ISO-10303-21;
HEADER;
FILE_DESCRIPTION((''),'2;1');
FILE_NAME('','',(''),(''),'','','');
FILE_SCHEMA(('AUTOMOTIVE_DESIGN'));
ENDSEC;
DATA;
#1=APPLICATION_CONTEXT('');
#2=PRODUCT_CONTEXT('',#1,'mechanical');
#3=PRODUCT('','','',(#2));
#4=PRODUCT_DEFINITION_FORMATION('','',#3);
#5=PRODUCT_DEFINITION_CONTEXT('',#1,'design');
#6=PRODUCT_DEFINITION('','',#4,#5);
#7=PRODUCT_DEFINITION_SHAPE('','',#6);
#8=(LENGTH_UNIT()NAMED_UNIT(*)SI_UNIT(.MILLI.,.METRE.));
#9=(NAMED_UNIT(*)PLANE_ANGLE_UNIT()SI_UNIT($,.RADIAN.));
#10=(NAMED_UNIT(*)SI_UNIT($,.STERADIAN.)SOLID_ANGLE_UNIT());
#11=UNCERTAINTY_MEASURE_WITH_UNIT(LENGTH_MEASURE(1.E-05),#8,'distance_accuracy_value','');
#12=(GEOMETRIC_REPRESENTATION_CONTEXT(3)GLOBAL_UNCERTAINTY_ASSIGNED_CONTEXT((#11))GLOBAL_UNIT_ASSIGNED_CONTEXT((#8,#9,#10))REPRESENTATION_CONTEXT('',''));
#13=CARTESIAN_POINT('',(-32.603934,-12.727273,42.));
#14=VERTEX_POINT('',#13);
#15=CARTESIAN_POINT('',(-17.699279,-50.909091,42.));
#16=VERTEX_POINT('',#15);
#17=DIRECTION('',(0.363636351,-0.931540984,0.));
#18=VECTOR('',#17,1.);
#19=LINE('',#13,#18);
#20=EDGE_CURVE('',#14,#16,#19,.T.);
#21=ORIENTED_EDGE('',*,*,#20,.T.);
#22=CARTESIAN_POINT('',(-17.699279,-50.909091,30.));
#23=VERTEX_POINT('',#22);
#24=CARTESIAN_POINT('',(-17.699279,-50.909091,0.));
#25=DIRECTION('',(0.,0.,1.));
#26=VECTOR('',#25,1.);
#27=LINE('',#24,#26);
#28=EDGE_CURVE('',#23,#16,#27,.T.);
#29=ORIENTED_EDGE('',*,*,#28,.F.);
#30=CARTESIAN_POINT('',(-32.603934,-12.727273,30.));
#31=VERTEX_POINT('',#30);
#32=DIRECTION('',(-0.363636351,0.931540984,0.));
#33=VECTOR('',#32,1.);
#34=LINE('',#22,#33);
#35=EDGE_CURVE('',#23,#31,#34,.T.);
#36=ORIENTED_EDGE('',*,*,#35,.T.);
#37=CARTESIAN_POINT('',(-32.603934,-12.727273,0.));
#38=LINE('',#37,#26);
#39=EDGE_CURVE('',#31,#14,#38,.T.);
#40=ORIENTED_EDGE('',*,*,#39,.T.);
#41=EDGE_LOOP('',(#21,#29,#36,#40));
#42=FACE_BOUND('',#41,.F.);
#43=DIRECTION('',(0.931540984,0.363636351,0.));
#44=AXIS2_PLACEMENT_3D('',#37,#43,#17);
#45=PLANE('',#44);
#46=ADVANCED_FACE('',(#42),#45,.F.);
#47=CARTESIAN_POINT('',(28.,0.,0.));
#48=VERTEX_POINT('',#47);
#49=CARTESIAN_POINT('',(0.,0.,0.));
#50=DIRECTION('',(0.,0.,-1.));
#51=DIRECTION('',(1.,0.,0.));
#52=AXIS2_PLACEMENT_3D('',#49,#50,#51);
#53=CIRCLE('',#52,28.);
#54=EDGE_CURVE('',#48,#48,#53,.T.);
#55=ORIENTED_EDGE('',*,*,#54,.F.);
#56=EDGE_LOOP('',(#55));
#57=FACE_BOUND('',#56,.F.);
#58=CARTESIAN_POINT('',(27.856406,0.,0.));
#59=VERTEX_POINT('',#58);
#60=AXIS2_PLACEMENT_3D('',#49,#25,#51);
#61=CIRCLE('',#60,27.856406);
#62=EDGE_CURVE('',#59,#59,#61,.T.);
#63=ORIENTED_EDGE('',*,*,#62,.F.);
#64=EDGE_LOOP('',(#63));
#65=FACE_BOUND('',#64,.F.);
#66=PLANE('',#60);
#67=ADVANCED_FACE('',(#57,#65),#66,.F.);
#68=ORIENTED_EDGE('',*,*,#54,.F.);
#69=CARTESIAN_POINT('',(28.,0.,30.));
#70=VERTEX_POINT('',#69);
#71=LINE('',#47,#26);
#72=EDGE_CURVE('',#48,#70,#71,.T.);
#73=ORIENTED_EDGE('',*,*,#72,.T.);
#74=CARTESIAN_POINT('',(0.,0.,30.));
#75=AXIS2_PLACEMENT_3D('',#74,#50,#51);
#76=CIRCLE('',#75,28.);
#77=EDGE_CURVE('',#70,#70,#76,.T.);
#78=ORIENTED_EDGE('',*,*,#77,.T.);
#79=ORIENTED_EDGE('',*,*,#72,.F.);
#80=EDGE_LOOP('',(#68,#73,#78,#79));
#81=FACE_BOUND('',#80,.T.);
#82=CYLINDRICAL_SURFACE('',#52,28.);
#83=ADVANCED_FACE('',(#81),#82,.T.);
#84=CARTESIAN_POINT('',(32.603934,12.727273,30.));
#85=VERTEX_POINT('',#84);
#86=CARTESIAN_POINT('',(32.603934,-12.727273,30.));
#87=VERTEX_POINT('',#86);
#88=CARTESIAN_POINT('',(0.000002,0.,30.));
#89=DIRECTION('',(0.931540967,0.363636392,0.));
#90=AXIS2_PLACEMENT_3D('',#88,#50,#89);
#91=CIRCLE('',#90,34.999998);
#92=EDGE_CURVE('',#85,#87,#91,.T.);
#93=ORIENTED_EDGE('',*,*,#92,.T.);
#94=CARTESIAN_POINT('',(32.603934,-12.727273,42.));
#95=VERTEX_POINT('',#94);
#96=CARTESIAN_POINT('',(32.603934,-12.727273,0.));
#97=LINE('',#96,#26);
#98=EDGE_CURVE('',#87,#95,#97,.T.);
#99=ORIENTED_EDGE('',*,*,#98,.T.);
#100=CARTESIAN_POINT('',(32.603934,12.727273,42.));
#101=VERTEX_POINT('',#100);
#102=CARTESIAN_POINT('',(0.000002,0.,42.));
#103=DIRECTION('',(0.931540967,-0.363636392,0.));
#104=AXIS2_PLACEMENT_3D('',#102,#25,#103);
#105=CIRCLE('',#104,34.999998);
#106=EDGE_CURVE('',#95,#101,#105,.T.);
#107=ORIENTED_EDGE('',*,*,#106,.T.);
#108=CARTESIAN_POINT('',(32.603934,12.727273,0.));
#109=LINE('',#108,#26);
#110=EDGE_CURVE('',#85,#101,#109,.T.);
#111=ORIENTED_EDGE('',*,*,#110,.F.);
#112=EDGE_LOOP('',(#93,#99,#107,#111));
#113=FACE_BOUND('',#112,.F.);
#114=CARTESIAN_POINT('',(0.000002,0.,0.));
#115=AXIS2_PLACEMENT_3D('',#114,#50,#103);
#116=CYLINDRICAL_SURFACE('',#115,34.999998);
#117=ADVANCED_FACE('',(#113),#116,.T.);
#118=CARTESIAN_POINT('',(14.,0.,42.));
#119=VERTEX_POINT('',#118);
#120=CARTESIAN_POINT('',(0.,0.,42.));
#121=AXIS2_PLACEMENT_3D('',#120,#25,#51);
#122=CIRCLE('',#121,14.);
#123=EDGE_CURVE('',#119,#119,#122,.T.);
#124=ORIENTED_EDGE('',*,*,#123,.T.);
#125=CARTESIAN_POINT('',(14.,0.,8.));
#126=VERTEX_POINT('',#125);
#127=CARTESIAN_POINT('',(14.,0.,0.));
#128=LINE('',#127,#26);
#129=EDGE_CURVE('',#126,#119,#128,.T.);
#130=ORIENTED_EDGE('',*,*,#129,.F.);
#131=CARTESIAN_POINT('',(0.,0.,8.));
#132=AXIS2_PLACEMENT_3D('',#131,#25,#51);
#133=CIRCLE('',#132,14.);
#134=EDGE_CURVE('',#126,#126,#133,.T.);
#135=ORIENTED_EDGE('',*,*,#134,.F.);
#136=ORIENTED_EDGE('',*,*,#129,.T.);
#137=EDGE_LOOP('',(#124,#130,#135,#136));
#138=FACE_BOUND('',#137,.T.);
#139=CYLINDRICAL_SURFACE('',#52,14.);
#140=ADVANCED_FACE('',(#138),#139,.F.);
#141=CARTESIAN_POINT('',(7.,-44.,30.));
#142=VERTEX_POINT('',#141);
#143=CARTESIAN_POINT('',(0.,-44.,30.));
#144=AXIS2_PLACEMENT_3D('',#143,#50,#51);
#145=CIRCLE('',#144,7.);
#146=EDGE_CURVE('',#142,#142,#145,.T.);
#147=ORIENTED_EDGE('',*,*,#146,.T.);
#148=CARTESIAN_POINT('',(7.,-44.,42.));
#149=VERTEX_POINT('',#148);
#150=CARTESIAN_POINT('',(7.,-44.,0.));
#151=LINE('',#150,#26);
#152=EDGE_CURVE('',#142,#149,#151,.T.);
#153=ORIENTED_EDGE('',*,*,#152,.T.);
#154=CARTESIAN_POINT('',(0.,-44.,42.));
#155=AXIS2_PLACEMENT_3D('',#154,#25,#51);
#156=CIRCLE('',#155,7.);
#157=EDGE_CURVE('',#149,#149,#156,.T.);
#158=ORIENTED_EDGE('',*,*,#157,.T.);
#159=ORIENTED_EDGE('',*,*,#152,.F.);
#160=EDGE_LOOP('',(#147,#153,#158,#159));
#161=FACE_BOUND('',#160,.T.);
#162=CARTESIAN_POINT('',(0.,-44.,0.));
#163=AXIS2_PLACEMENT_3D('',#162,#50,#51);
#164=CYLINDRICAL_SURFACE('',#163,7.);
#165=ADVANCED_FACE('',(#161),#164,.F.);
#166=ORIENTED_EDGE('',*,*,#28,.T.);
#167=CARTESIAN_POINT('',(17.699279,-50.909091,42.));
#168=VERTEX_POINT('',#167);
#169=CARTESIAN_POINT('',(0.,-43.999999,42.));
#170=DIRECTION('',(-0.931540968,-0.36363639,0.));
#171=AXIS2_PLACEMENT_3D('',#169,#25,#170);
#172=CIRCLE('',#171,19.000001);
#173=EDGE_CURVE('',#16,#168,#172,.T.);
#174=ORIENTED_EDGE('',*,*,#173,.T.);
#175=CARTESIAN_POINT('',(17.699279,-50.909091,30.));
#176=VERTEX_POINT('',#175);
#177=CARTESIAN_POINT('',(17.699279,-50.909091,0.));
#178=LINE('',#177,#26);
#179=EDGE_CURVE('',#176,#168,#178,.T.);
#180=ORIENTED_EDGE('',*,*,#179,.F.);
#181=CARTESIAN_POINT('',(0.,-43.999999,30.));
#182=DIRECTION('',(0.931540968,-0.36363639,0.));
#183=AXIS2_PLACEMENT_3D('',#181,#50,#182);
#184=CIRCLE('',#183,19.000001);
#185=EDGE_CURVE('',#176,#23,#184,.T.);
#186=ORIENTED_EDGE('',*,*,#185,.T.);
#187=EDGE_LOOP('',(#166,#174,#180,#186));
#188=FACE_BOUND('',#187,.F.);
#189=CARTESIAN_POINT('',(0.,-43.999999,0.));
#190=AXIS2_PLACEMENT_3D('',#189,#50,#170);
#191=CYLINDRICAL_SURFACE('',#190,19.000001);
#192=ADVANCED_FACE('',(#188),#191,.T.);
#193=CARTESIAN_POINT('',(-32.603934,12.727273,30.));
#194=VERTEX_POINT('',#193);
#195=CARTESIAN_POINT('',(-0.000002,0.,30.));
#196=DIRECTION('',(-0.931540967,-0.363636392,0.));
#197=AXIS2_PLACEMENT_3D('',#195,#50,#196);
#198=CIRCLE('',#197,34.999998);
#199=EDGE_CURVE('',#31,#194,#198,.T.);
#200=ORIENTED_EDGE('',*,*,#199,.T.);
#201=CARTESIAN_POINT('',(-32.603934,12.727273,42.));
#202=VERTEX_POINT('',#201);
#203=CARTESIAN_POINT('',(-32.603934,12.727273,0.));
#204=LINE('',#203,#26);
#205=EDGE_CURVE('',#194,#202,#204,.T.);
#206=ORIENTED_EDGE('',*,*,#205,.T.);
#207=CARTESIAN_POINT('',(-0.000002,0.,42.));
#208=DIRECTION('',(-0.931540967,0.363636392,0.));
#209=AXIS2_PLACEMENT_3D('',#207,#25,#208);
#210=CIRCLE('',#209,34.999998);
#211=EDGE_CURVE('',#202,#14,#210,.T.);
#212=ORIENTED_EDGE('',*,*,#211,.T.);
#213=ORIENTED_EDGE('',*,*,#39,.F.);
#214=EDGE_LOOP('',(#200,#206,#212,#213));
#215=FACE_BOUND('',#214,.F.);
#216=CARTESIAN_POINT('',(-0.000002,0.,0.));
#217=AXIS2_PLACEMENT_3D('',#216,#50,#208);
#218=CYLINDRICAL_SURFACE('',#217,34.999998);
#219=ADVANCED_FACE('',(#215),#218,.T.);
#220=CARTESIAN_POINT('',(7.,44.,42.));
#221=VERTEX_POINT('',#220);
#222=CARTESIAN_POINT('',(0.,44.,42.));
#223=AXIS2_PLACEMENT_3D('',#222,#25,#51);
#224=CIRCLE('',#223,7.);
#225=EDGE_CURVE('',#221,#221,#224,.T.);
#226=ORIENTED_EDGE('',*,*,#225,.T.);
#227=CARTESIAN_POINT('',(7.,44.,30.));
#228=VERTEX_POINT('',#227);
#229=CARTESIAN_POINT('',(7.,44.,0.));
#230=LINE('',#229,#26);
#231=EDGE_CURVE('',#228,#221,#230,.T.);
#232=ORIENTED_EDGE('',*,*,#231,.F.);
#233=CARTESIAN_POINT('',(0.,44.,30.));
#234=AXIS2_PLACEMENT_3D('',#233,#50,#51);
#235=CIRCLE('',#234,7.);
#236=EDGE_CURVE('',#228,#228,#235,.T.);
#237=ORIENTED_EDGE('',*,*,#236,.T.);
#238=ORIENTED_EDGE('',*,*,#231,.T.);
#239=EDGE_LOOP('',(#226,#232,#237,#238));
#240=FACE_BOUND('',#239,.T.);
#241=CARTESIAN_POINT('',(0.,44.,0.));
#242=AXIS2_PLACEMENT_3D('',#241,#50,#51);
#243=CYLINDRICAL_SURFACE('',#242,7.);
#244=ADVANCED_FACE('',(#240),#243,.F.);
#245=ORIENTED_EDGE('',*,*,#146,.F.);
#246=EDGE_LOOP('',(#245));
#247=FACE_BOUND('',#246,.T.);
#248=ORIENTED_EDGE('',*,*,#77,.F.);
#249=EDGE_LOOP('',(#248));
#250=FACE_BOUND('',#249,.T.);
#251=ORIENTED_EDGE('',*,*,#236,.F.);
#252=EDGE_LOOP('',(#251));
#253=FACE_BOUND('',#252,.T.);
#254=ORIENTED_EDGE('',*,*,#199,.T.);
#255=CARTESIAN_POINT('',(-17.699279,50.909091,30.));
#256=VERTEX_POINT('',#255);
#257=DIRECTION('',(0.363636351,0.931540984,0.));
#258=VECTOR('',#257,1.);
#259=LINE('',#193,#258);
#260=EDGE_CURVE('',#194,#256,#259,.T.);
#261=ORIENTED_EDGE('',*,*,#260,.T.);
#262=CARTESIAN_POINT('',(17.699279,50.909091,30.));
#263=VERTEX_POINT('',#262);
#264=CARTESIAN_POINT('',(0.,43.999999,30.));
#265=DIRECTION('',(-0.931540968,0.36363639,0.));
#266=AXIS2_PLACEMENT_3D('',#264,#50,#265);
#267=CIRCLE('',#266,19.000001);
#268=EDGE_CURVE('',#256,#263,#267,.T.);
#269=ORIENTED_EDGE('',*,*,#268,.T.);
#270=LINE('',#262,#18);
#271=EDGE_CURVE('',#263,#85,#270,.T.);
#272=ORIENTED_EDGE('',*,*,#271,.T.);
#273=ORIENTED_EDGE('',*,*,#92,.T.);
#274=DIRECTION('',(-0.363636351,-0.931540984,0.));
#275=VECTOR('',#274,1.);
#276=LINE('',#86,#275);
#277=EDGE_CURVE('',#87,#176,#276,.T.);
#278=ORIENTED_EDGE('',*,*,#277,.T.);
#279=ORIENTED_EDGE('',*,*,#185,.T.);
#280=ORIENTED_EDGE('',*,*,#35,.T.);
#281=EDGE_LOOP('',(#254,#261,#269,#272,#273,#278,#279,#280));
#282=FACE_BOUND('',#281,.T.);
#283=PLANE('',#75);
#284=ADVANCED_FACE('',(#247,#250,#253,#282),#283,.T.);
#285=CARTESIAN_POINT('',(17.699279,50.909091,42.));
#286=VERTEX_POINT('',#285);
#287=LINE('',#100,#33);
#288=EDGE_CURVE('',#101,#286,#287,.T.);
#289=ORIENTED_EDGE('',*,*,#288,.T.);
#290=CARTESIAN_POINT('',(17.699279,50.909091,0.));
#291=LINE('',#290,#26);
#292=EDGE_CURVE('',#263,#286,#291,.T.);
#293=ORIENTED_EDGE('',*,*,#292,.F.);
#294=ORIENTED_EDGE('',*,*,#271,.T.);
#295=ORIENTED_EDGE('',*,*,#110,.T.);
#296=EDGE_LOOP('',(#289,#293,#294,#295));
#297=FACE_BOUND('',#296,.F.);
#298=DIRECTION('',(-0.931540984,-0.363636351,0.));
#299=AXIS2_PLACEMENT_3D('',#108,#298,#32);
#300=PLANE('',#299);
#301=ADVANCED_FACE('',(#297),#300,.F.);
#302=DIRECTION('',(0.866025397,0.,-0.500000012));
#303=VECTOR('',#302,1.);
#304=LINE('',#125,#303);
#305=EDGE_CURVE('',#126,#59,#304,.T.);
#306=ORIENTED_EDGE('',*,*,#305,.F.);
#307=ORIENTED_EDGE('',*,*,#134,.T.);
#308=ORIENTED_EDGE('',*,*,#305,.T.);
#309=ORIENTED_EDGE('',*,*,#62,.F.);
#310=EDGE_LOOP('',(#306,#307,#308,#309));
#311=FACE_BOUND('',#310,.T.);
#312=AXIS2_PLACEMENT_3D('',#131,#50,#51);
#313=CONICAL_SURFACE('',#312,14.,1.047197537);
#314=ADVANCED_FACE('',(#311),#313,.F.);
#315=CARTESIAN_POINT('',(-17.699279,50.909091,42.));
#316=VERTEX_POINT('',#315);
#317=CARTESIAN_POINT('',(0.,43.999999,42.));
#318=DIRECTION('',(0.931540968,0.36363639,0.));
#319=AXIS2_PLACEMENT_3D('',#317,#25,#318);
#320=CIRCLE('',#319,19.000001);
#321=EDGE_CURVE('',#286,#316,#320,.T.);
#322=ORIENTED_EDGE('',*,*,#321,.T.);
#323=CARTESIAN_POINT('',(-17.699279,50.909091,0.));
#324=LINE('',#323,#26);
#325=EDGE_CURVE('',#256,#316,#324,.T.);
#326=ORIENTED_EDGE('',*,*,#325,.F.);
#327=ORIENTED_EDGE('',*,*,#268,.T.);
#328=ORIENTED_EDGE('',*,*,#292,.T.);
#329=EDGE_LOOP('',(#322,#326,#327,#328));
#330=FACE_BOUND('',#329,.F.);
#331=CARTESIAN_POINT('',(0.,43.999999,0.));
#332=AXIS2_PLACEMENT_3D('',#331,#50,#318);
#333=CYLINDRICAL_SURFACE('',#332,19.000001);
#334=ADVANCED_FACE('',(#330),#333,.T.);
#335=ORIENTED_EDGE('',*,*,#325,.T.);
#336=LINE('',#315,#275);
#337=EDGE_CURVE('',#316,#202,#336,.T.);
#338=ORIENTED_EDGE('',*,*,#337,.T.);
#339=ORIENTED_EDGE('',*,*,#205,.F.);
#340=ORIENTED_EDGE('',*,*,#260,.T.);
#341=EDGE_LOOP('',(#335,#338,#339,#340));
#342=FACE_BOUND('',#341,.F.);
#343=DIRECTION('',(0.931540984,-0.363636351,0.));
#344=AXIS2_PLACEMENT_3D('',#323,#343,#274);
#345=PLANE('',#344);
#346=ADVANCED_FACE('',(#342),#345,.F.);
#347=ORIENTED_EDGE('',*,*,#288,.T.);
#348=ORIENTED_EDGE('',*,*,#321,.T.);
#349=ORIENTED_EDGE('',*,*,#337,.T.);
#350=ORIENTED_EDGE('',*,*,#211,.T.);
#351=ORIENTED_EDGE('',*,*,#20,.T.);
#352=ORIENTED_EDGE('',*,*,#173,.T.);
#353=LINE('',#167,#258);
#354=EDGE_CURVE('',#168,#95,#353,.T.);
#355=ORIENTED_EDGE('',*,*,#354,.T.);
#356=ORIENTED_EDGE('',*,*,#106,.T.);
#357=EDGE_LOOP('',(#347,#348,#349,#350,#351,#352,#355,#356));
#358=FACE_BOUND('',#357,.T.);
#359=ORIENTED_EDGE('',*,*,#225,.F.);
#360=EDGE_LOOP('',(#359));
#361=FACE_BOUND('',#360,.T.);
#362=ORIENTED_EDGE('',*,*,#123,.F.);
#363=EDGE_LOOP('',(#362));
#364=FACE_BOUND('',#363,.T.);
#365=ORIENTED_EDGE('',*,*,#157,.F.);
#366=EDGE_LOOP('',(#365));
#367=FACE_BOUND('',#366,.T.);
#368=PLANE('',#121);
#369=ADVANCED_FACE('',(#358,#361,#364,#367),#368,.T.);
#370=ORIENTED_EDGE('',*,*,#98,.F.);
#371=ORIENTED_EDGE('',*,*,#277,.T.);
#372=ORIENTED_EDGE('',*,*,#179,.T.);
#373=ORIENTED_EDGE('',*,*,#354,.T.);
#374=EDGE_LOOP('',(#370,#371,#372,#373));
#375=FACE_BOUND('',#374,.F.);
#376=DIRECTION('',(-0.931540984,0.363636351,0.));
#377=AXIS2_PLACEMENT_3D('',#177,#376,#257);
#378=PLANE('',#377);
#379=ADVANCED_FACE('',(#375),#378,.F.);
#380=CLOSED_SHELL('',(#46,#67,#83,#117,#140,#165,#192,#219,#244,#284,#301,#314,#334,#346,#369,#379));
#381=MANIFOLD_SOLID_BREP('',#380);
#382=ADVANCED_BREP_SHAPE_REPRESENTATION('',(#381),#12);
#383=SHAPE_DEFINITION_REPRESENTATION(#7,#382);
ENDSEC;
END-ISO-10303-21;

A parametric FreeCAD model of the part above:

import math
import FreeCAD as App
import Part
import Sketcher

V = App.Vector
Q = App.Units.Quantity


def edges_at(feature, points):
    """Names of the edges that pass closest to the given points."""
    edges = feature.Shape.Edges
    near = lambda p: min(range(len(edges)), key=lambda i: edges[i].distToShape(Part.Vertex(*p))[0])
    return sorted({f"Edge{near(p) + 1}" for p in points})

doc = App.newDocument("Part")
body = doc.addObject("PartDesign::Body", "Body")

sketch1 = doc.addObject("Sketcher::SketchObject", "Sketch")
body.addObject(sketch1)
sketch1.AttachmentSupport = (doc.XY_Plane, [""])
sketch1.MapMode = "FlatFace"
sketch1.addGeometry([
    Part.LineSegment(V(33, 13, 0), V(18, 51, 0)),
    Part.ArcOfCircle(Part.Circle(V(0, 44, 0), V(0, 0, 1), 19), math.radians(21), math.radians(159)),
    Part.LineSegment(V(-18, 51, 0), V(-33, 13, 0)),
    Part.ArcOfCircle(Part.Circle(V(0, 0, 0), V(0, 0, 1), 35), math.radians(159), math.radians(201)),
    Part.LineSegment(V(-33, -13, 0), V(-18, -51, 0)),
    Part.ArcOfCircle(Part.Circle(V(0, -44, 0), V(0, 0, 1), 19), math.radians(-159), math.radians(-21)),
    Part.LineSegment(V(18, -51, 0), V(33, -13, 0)),
    Part.ArcOfCircle(Part.Circle(V(0, 0, 0), V(0, 0, 1), 35), math.radians(-21), math.radians(21)),
    Part.Circle(V(0, -44, 0), V(0, 0, 1), 7),
    Part.Circle(V(0, 0, 0), V(0, 0, 1), 14),
    Part.Circle(V(0, 44, 0), V(0, 0, 1), 7),
], False)
sketch1.addConstraint([
    Sketcher.Constraint("Tangent", 0, 2, 1, 1),
    Sketcher.Constraint("Tangent", 1, 2, 2, 1),
    Sketcher.Constraint("Tangent", 2, 2, 3, 1),
    Sketcher.Constraint("Tangent", 3, 2, 4, 1),
    Sketcher.Constraint("Tangent", 4, 2, 5, 1),
    Sketcher.Constraint("Tangent", 5, 2, 6, 1),
    Sketcher.Constraint("Tangent", 6, 2, 7, 1),
    Sketcher.Constraint("Tangent", 7, 2, 0, 1),
    Sketcher.Constraint("Coincident", 3, 3, -1, 1),
    Sketcher.Constraint("Coincident", 7, 3, -1, 1),
    Sketcher.Constraint("Coincident", 9, 3, -1, 1),
    Sketcher.Constraint("Coincident", 8, 3, 5, 3),
    Sketcher.Constraint("Coincident", 10, 3, 1, 3),
    Sketcher.Constraint("Equal", 1, 5),
    Sketcher.Constraint("Equal", 3, 7),
    Sketcher.Constraint("Equal", 8, 10),
    Sketcher.Constraint("Symmetric", 1, 3, 5, 3, -1, 1),
    Sketcher.Constraint("PointOnObject", 1, 3, -2),
    Sketcher.Constraint("Diameter", 8, Q("14 mm")),
    Sketcher.Constraint("Diameter", 9, Q("28 mm")),
    Sketcher.Constraint("Radius", 1, Q("19.000001 mm")),
    Sketcher.Constraint("DistanceY", -1, 1, 1, 3, Q("43.999999 mm")),
    Sketcher.Constraint("Radius", 3, Q("34.999998 mm")),
])
pad1 = doc.addObject("PartDesign::Pad", "Pad")
body.addObject(pad1)
pad1.Profile = sketch1
pad1.Length = 42

sketch2 = doc.addObject("Sketcher::SketchObject", "Sketch001")
body.addObject(sketch2)
sketch2.AttachmentSupport = (doc.XY_Plane, [""])
sketch2.MapMode = "FlatFace"
sketch2.addGeometry([
    Part.ArcOfCircle(Part.Circle(V(0, 44, 0), V(0, 0, 1), 19), math.radians(21), math.radians(159)),
    Part.LineSegment(V(18, 51, 0), V(33, 13, 0)),
    Part.ArcOfCircle(Part.Circle(V(0, 0, 0), V(0, 0, 1), 35), math.radians(-21), math.radians(21)),
    Part.LineSegment(V(33, -13, 0), V(18, -51, 0)),
    Part.ArcOfCircle(Part.Circle(V(0, -44, 0), V(0, 0, 1), 19), math.radians(-159), math.radians(-21)),
    Part.LineSegment(V(-18, -51, 0), V(-33, -13, 0)),
    Part.ArcOfCircle(Part.Circle(V(0, 0, 0), V(0, 0, 1), 35), math.radians(159), math.radians(201)),
    Part.LineSegment(V(-33, 13, 0), V(-18, 51, 0)),
    Part.Circle(V(0, 44, 0), V(0, 0, 1), 7),
    Part.Circle(V(0, 0, 0), V(0, 0, 1), 28),
    Part.Circle(V(0, -44, 0), V(0, 0, 1), 7),
], False)
sketch2.addConstraint([
    Sketcher.Constraint("Tangent", 0, 1, 1, 1),
    Sketcher.Constraint("Tangent", 1, 2, 2, 2),
    Sketcher.Constraint("Tangent", 2, 1, 3, 1),
    Sketcher.Constraint("Tangent", 3, 2, 4, 2),
    Sketcher.Constraint("Tangent", 4, 1, 5, 1),
    Sketcher.Constraint("Tangent", 5, 2, 6, 2),
    Sketcher.Constraint("Tangent", 6, 1, 7, 1),
    Sketcher.Constraint("Tangent", 7, 2, 0, 2),
    Sketcher.Constraint("Coincident", 2, 3, -1, 1),
    Sketcher.Constraint("Coincident", 6, 3, -1, 1),
    Sketcher.Constraint("Coincident", 9, 3, -1, 1),
    Sketcher.Constraint("Coincident", 8, 3, 0, 3),
    Sketcher.Constraint("Coincident", 10, 3, 4, 3),
    Sketcher.Constraint("Equal", 0, 4),
    Sketcher.Constraint("Equal", 2, 6),
    Sketcher.Constraint("Equal", 8, 10),
    Sketcher.Constraint("Symmetric", 0, 3, 4, 3, -1, 1),
    Sketcher.Constraint("PointOnObject", 0, 3, -2),
    Sketcher.Constraint("Diameter", 8, Q("14 mm")),
    Sketcher.Constraint("Diameter", 9, Q("56 mm")),
    Sketcher.Constraint("Radius", 0, Q("19.000001 mm")),
    Sketcher.Constraint("DistanceY", -1, 1, 0, 3, Q("43.999999 mm")),
    Sketcher.Constraint("Radius", 2, Q("34.999998 mm")),
])
pocket1 = doc.addObject("PartDesign::Pocket", "Pocket")
body.addObject(pocket1)
pocket1.Profile = sketch2
pocket1.Length = 30
pocket1.Reversed = True
doc.recompute()

chamfer = doc.addObject("PartDesign::Chamfer", "Chamfer")
body.addObject(chamfer)
chamfer.Base = (pocket1, edges_at(pocket1, [(-14, 0, 0)]))
chamfer.ChamferType = "Two distances"
chamfer.Size = 8
chamfer.Size2 = 13.856406

doc.recompute()
